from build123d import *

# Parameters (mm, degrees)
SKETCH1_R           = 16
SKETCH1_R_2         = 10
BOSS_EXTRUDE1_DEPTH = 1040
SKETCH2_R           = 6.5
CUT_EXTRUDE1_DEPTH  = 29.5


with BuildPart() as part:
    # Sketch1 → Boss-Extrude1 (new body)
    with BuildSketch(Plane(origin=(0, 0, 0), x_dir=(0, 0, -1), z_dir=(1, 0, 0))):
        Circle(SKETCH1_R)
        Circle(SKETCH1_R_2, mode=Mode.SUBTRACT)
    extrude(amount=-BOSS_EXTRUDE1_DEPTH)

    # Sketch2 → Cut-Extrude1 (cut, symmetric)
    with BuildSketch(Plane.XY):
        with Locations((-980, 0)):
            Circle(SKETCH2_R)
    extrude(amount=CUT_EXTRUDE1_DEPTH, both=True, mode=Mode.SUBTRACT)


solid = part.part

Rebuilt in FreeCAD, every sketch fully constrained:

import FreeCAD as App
import Part
import Sketcher

doc = App.newDocument("Part")
body = doc.addObject("PartDesign::Body", "Body")

sketch1 = doc.addObject("Sketcher::SketchObject", "Sketch")
body.addObject(sketch1)
sketch1.AttachmentSupport = (doc.YZ_Plane, [""])
sketch1.MapMode = "FlatFace"
sketch1.addGeometry(Part.Circle(App.Vector(0, 0, 0), App.Vector(0, 0, 1), 16), False)
sketch1.addGeometry(Part.Circle(App.Vector(0, 0, 0), App.Vector(0, 0, 1), 10), False)
sketch1.addConstraint(Sketcher.Constraint("Coincident", 0, 3, -1, 1))
sketch1.addConstraint(Sketcher.Constraint("Coincident", 1, 3, -1, 1))
sketch1.addConstraint(Sketcher.Constraint("Diameter", 0, 32.0))
sketch1.addConstraint(Sketcher.Constraint("Diameter", 1, 20.0))
pad1 = doc.addObject("PartDesign::Pad", "Pad")
body.addObject(pad1)
pad1.Profile = sketch1
pad1.Length = 1040
pad1.Reversed = True

sketch2 = doc.addObject("Sketcher::SketchObject", "Sketch001")
body.addObject(sketch2)
sketch2.AttachmentSupport = (doc.XY_Plane, [""])
sketch2.MapMode = "FlatFace"
sketch2.addGeometry(Part.Circle(App.Vector(-980, 0, 0), App.Vector(0, 0, 1), 6), False)
sketch2.addConstraint(Sketcher.Constraint("PointOnObject", 0, 3, -1))
sketch2.addConstraint(Sketcher.Constraint("Diameter", 0, 13.0))
sketch2.addConstraint(Sketcher.Constraint("DistanceX", 0, 3, -1, 1, 980.0))
pocket1 = doc.addObject("PartDesign::Pocket", "Pocket")
body.addObject(pocket1)
pocket1.Profile = sketch2
pocket1.Length = 59
pocket1.Midplane = True

doc.recompute()
